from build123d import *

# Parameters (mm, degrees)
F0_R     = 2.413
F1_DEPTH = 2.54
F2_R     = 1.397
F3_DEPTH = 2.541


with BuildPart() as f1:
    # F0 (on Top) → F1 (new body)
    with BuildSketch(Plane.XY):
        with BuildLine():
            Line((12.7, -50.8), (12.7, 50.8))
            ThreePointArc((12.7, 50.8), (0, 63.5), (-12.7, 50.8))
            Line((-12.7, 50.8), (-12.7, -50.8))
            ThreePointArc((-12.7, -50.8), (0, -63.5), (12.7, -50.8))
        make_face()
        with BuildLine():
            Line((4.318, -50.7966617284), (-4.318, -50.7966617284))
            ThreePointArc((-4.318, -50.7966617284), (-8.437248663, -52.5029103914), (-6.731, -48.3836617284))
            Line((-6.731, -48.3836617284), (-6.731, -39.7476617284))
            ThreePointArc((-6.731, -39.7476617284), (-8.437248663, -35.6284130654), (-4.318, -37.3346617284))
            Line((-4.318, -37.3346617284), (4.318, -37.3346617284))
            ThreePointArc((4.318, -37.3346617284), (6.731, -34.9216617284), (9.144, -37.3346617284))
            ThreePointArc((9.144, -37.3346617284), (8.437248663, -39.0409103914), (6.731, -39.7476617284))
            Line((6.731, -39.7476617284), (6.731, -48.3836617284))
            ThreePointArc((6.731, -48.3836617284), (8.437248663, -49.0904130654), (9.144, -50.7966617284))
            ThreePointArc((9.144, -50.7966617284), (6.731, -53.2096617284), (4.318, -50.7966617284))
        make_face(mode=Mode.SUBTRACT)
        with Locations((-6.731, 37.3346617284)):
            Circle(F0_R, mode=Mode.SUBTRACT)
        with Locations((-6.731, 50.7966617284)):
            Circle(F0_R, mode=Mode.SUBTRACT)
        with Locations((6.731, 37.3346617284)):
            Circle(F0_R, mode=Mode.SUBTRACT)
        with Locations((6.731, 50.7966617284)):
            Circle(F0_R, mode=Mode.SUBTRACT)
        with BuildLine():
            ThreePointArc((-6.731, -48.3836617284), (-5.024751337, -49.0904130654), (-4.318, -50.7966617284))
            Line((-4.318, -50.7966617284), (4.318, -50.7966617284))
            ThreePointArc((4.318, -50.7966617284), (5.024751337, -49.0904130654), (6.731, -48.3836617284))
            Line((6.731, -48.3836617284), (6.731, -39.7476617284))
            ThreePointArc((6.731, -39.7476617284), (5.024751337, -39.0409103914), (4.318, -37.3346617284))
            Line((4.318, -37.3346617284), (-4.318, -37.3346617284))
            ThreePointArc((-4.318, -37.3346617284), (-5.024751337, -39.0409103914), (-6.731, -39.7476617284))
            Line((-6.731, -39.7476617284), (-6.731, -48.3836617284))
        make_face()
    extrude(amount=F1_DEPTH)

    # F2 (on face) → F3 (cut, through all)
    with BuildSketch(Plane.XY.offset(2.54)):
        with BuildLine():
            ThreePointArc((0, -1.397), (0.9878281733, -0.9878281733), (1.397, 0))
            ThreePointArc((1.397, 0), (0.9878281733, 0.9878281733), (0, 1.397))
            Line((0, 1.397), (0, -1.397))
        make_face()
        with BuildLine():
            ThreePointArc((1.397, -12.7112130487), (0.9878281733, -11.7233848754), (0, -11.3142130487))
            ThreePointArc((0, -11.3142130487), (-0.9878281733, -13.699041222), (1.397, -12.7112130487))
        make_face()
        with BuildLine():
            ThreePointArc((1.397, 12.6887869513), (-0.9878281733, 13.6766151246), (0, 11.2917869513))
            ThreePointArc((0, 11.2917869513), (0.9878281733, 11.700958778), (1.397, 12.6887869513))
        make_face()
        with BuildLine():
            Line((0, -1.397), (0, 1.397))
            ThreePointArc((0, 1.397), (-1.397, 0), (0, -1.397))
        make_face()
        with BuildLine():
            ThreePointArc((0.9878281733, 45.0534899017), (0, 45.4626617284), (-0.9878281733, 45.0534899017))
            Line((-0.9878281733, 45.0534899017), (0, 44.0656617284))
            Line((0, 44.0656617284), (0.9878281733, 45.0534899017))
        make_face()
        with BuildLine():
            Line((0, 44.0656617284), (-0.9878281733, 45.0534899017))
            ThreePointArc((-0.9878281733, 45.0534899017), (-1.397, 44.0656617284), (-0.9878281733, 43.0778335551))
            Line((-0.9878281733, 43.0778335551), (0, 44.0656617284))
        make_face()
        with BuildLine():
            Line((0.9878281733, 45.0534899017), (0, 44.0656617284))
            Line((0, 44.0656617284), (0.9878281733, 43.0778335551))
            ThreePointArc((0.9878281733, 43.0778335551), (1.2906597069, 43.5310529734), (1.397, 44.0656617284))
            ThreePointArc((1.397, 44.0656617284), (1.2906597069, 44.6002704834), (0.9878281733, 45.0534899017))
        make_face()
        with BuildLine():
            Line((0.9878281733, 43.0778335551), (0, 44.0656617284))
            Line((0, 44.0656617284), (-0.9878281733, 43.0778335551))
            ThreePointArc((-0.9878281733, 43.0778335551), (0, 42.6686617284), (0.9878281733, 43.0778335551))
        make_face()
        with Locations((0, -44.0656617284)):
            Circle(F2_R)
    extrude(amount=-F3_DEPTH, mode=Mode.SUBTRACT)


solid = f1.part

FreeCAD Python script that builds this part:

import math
import FreeCAD as App
import Part
import Sketcher
Q = App.Units.Quantity

doc = App.newDocument("Part")
body = doc.addObject("PartDesign::Body", "Body")

sketch1 = doc.addObject("Sketcher::SketchObject", "Sketch")
body.addObject(sketch1)
sketch1.AttachmentSupport = (doc.XY_Plane, [""])
sketch1.MapMode = "FlatFace"
sketch1.addGeometry([
    Part.LineSegment(App.Vector(12.7, -50.8, 0), App.Vector(12.7, 50.8, 0)),
    Part.ArcOfCircle(Part.Circle(App.Vector(0, 50.8, 0), App.Vector(0, 0, 1), 12.7), math.radians(0), math.radians(180)),
    Part.LineSegment(App.Vector(-12.7, 50.8, 0), App.Vector(-12.7, -50.8, 0)),
    Part.ArcOfCircle(Part.Circle(App.Vector(0, -50.8, 0), App.Vector(0, 0, 1), 12.7), math.radians(180), math.radians(360)),
    Part.ArcOfCircle(Part.Circle(App.Vector(6.7, -50.8, 0), App.Vector(0, 0, 1), 2.4), math.radians(180), math.radians(360)),
    Part.ArcOfCircle(Part.Circle(App.Vector(6.7, -50.8, 0), App.Vector(0, 0, 1), 2.4), math.radians(90), math.radians(180)),
    Part.ArcOfCircle(Part.Circle(App.Vector(6.7, -50.8, 0), App.Vector(0, 0, 1), 2.4), math.radians(0), math.radians(90)),
    Part.ArcOfCircle(Part.Circle(App.Vector(-6.7, -50.8, 0), App.Vector(0, 0, 1), 2.4), math.radians(90), math.radians(360)),
    Part.ArcOfCircle(Part.Circle(App.Vector(-6.7, -50.8, 0), App.Vector(0, 0, 1), 2.4), math.radians(0), math.radians(90)),
    Part.ArcOfCircle(Part.Circle(App.Vector(6.7, -37.3, 0), App.Vector(0, 0, 1), 2.4), math.radians(-90), math.radians(0)),
    Part.ArcOfCircle(Part.Circle(App.Vector(6.7, -37.3, 0), App.Vector(0, 0, 1), 2.4), math.radians(180), math.radians(270)),
    Part.ArcOfCircle(Part.Circle(App.Vector(6.7, -37.3, 0), App.Vector(0, 0, 1), 2.4), math.radians(0), math.radians(180)),
    Part.ArcOfCircle(Part.Circle(App.Vector(-6.7, -37.3, 0), App.Vector(0, 0, 1), 2.4), math.radians(0), math.radians(270)),
    Part.ArcOfCircle(Part.Circle(App.Vector(-6.7, -37.3, 0), App.Vector(0, 0, 1), 2.4), math.radians(-90), math.radians(0)),
    Part.Circle(App.Vector(-6.7, 37.3, 0), App.Vector(0, 0, 1), 2.4),
    Part.Circle(App.Vector(-6.7, 50.8, 0), App.Vector(0, 0, 1), 2.4),
    Part.Circle(App.Vector(6.7, 37.3, 0), App.Vector(0, 0, 1), 2.4),
    Part.Circle(App.Vector(6.7, 50.8, 0), App.Vector(0, 0, 1), 2.4),
], False)
sketch1.addConstraint([
    Sketcher.Constraint("Tangent", 0, 2, 1, 1),
    Sketcher.Constraint("Tangent", 1, 2, 2, 1),
    Sketcher.Constraint("Tangent", 2, 2, 3, 1),
    Sketcher.Constraint("Tangent", 3, 2, 0, 1),
    Sketcher.Constraint("Tangent", 4, 1, 5, 2),
    Sketcher.Constraint("Tangent", 5, 1, 6, 2),
    Sketcher.Constraint("Tangent", 6, 1, 4, 2),
    Sketcher.Constraint("Tangent", 7, 1, 8, 2),
    Sketcher.Constraint("Coincident", 8, 1, 7, 2),
    Sketcher.Constraint("Tangent", 9, 1, 10, 2),
    Sketcher.Constraint("Tangent", 10, 1, 11, 2),
    Sketcher.Constraint("Tangent", 11, 1, 9, 2),
    Sketcher.Constraint("Tangent", 12, 1, 13, 2),
    Sketcher.Constraint("Coincident", 13, 1, 12, 2),
    Sketcher.Constraint("Vertical", 0),
    Sketcher.Constraint("Vertical", 2),
    Sketcher.Constraint("Equal", 6, 7),
    Sketcher.Constraint("Equal", 8, 9),
    Sketcher.Constraint("Equal", 11, 12),
    Sketcher.Constraint("Equal", 13, 14),
    Sketcher.Constraint("Equal", 14, 15),
    Sketcher.Constraint("Equal", 15, 16),
    Sketcher.Constraint("Equal", 16, 17),
    Sketcher.Constraint("Symmetric", 1, 3, 3, 3, -1, 1),
    Sketcher.Constraint("Symmetric", 9, 3, 14, 3, -1, 1),
    Sketcher.Constraint("Symmetric", 4, 3, 15, 3, -1, 1),
    Sketcher.Constraint("Symmetric", 12, 3, 16, 3, -1, 1),
    Sketcher.Constraint("Symmetric", 7, 3, 17, 3, -1, 1),
    Sketcher.Constraint("Symmetric", 4, 3, 7, 3, -2),
    Sketcher.Constraint("Symmetric", 9, 3, 12, 3, -2),
    Sketcher.Constraint("Horizontal", 8, 3, 4, 1),
    Sketcher.Constraint("Horizontal", 4, 1, 6, 1),
    Sketcher.Constraint("Horizontal", 6, 1, 8, 1),
    Sketcher.Constraint("Horizontal", 13, 3, 10, 1),
    Sketcher.Constraint("Horizontal", 10, 1, 11, 1),
    Sketcher.Constraint("Horizontal", 11, 1, 12, 1),
    Sketcher.Constraint("Vertical", 6, 3, 9, 3),
    Sketcher.Constraint("Vertical", 17, 3, 5, 1),
    Sketcher.Constraint("Vertical", 15, 3, 7, 1),
    Sketcher.Constraint("Vertical", 5, 1, 9, 1),
    Sketcher.Constraint("Vertical", 7, 1, 13, 1),
    Sketcher.Constraint("Radius", 1, Q("0.5 in")),
    Sketcher.Constraint("Diameter", 14, Q("0.19 in")),
    Sketcher.Constraint("DistanceY", 0, 1, 0, 2, Q("4 in")),
    Sketcher.Constraint("DistanceX", -1, 1, 4, 1, Q("0.17 in")),
    Sketcher.Constraint("DistanceY", 4, 3, 9, 3, Q("0.53 in")),
    Sketcher.Constraint("DistanceY", 4, 3, -1, 1, Q("50.796662 mm")),
])
pad1 = doc.addObject("PartDesign::Pad", "Pad")
body.addObject(pad1)
pad1.Profile = sketch1
pad1.Length = Q("0.1 in")

sketch2 = doc.addObject("Sketcher::SketchObject", "Sketch001")
body.addObject(sketch2)
sketch2.AttachmentSupport = (doc.XY_Plane, [""])
sketch2.MapMode = "FlatFace"
sketch2.AttachmentOffset = App.Placement(App.Vector(0, 0, 0.1 * 25.4), App.Rotation())
sketch2.addGeometry([
    Part.ArcOfCircle(Part.Circle(App.Vector(0, 0, 0), App.Vector(0, 0, 1), 1.4), math.radians(-90), math.radians(0)),
    Part.ArcOfCircle(Part.Circle(App.Vector(0, 0, 0), App.Vector(0, 0, 1), 1.4), math.radians(0), math.radians(90)),
    Part.ArcOfCircle(Part.Circle(App.Vector(0, 0, 0), App.Vector(0, 0, 1), 1.4), math.radians(90), math.radians(270)),
    Part.ArcOfCircle(Part.Circle(App.Vector(0, -12.7, 0), App.Vector(0, 0, 1), 1.4), math.radians(0), math.radians(90)),
    Part.ArcOfCircle(Part.Circle(App.Vector(0, -12.7, 0), App.Vector(0, 0, 1), 1.4), math.radians(90), math.radians(360)),
    Part.ArcOfCircle(Part.Circle(App.Vector(0, 12.7, 0), App.Vector(0, 0, 1), 1.4), math.radians(0), math.radians(270)),
    Part.ArcOfCircle(Part.Circle(App.Vector(0, 12.7, 0), App.Vector(0, 0, 1), 1.4), math.radians(-90), math.radians(0)),
    Part.ArcOfCircle(Part.Circle(App.Vector(0, 44.1, 0), App.Vector(0, 0, 1), 1.4), math.radians(45), math.radians(135)),
    Part.ArcOfCircle(Part.Circle(App.Vector(0, 44.1, 0), App.Vector(0, 0, 1), 1.4), math.radians(135), math.radians(225)),
    Part.ArcOfCircle(Part.Circle(App.Vector(0, 44.1, 0), App.Vector(0, 0, 1), 1.4), math.radians(-135), math.radians(-45)),
    Part.ArcOfCircle(Part.Circle(App.Vector(0, 44.1, 0), App.Vector(0, 0, 1), 1.4), math.radians(-45), math.radians(0)),
    Part.ArcOfCircle(Part.Circle(App.Vector(0, 44.1, 0), App.Vector(0, 0, 1), 1.4), math.radians(0), math.radians(45)),
    Part.Circle(App.Vector(0, -44.1, 0), App.Vector(0, 0, 1), 1.4),
], False)
sketch2.addConstraint([
    Sketcher.Constraint("Tangent", 0, 2, 1, 1),
    Sketcher.Constraint("Tangent", 1, 2, 2, 1),
    Sketcher.Constraint("Tangent", 2, 2, 0, 1),
    Sketcher.Constraint("Tangent", 3, 1, 4, 2),
    Sketcher.Constraint("Coincident", 4, 1, 3, 2),
    Sketcher.Constraint("Tangent", 5, 1, 6, 2),
    Sketcher.Constraint("Coincident", 6, 1, 5, 2),
    Sketcher.Constraint("Tangent", 7, 2, 8, 1),
    Sketcher.Constraint("Tangent", 8, 2, 9, 1),
    Sketcher.Constraint("Tangent", 9, 2, 10, 1),
    Sketcher.Constraint("Tangent", 10, 2, 11, 1),
    Sketcher.Constraint("Tangent", 11, 2, 7, 1),
    Sketcher.Constraint("Coincident", 0, 3, -1, 1),
    Sketcher.Constraint("Coincident", 9, 3, 7, 3),
    Sketcher.Constraint("Equal", 2, 3),
    Sketcher.Constraint("Equal", 4, 5),
    Sketcher.Constraint("Equal", 6, 7),
    Sketcher.Constraint("Equal", 11, 12),
    Sketcher.Constraint("Symmetric", 7, 3, 12, 3, -1, 1),
    Sketcher.Constraint("Symmetric", 8, 2, 9, 2, -2),
    Sketcher.Constraint("PointOnObject", 3, 3, -2),
    Sketcher.Constraint("PointOnObject", 5, 3, -2),
    Sketcher.Constraint("PointOnObject", 0, 2, -1),
    Sketcher.Constraint("PointOnObject", 1, 2, -2),
    Sketcher.Constraint("PointOnObject", 2, 2, -2),
    Sketcher.Constraint("PointOnObject", 4, 1, -2),
    Sketcher.Constraint("PointOnObject", 6, 1, -2),
    Sketcher.Constraint("Horizontal", 4, 3, 3, 1),
    Sketcher.Constraint("Horizontal", 6, 3, 5, 1),
    Sketcher.Constraint("Horizontal", 11, 3, 10, 2),
    Sketcher.Constraint("Horizontal", 7, 2, 11, 2),
    Sketcher.Constraint("Vertical", 7, 2, 8, 2),
    Sketcher.Constraint("Diameter", 12, Q("0.11 in")),
    Sketcher.Constraint("DistanceY", 3, 3, 5, 3, Q("1 in")),
    Sketcher.Constraint("DistanceY", -1, 1, 7, 3, Q("44.065662 mm")),
    Sketcher.Constraint("DistanceX", 7, 2, -1, 1, Q("0.987828 mm")),
    Sketcher.Constraint("DistanceY", 12, 3, 3, 3, Q("31.354449 mm")),
])
pocket1 = doc.addObject("PartDesign::Pocket", "Pocket")
body.addObject(pocket1)
pocket1.Profile = sketch2
pocket1.Type = "ThroughAll"

doc.recompute()
